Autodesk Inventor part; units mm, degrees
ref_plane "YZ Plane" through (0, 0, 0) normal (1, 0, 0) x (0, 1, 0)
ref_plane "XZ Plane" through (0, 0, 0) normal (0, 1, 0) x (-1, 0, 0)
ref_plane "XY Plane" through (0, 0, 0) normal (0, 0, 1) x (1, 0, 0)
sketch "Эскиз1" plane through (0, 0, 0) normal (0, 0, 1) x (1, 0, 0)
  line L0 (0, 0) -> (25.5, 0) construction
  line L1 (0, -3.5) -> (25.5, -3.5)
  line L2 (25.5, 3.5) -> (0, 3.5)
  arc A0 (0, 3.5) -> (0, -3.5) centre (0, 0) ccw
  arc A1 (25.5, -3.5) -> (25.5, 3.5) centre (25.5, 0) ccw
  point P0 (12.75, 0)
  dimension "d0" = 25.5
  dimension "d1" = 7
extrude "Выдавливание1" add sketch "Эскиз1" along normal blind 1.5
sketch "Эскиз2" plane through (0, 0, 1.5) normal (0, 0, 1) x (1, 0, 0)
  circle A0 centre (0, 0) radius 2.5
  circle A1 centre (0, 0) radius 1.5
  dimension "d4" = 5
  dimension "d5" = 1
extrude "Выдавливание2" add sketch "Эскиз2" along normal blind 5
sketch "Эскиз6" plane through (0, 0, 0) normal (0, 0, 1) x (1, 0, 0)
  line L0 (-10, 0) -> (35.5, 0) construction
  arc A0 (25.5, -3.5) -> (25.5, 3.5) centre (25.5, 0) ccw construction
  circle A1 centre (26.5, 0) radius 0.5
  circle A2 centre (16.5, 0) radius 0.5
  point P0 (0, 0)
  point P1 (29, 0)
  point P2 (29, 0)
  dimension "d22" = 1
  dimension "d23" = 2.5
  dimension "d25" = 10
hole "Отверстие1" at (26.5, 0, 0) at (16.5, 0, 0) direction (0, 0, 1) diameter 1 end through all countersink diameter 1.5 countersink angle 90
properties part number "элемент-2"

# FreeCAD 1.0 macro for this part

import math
import FreeCAD as App
import Part
import Sketcher

V = App.Vector
Q = App.Units.Quantity

doc = App.newDocument("Part")
params = doc.addObject("Spreadsheet::Sheet", "Params")
for row, (alias, value) in enumerate([
    ("sketch1_radius", "3.5 mm"),
    ("sketch1_width", "25.5 mm"),
    ("pad1_length", "1.5 mm"),
    ("sketch2_diameter", "5 mm"),
    ("sketch2_diameter2", "3 mm"),
    ("pad2_length", "5 mm"),
    ("sketch3_diameter", "1 mm"),
    ("hole_diameter", "1 mm"),
    ("hole_csink_diameter", "1.5 mm"),
], start=1):
    params.set(f"A{row}", alias)
    params.set(f"B{row}", "=" + value)
    params.setAlias(f"B{row}", alias)

body = doc.addObject("PartDesign::Body", "Body")

sketch1 = body.newObject("Sketcher::SketchObject", "Sketch")
sketch1.AttachmentSupport = (doc.getObject("XY_Plane"), [""])
sketch1.MapMode = "FlatFace"
sketch1.addGeometry(Part.ArcOfCircle(Part.Circle(V(0, 0, 0), V(0, 0, 1), 3.5), math.radians(90), math.radians(270)), False)
sketch1.addGeometry(Part.LineSegment(V(0, -3.5, 0), V(25.5, -3.5, 0)), False)
sketch1.addGeometry(Part.ArcOfCircle(Part.Circle(V(25.5, 0, 0), V(0, 0, 1), 3.5), math.radians(-90), math.radians(90)), False)
sketch1.addGeometry(Part.LineSegment(V(25.5, 3.5, 0), V(0, 3.5, 0)), False)
sketch1.addConstraint(Sketcher.Constraint("Tangent", 0, 2, 1, 1))
sketch1.addConstraint(Sketcher.Constraint("Tangent", 1, 2, 2, 1))
sketch1.addConstraint(Sketcher.Constraint("Tangent", 2, 2, 3, 1))
sketch1.addConstraint(Sketcher.Constraint("Tangent", 3, 2, 0, 1))
sketch1.addConstraint(Sketcher.Constraint("Horizontal", 1))
sketch1.addConstraint(Sketcher.Constraint("Horizontal", 3))
sketch1.addConstraint(Sketcher.Constraint("Coincident", 0, 3, -1, 1))
sketch1.addConstraint(Sketcher.Constraint("Radius", 0, Q("3.5 mm")))
sketch1.addConstraint(Sketcher.Constraint("DistanceX", 1, 1, 1, 2, Q("25.5 mm")))
sketch1.setExpression("Constraints[7]", "Params.sketch1_radius")
sketch1.setExpression("Constraints[8]", "Params.sketch1_width")
pad1 = body.newObject("PartDesign::Pad", "Pad")
pad1.Profile = sketch1
pad1.setExpression("Length", "Params.pad1_length")

sketch2 = body.newObject("Sketcher::SketchObject", "Sketch001")
sketch2.AttachmentSupport = (doc.getObject("XY_Plane"), [""])
sketch2.MapMode = "FlatFace"
sketch2.AttachmentOffset = App.Placement(V(0, 0, 1.5), App.Rotation())
sketch2.addGeometry(Part.Circle(V(0, 0, 0), V(0, 0, 1), 2.5), False)
sketch2.addGeometry(Part.Circle(V(0, 0, 0), V(0, 0, 1), 1.5), False)
sketch2.addConstraint(Sketcher.Constraint("Coincident", 0, 3, -1, 1))
sketch2.addConstraint(Sketcher.Constraint("Coincident", 1, 3, -1, 1))
sketch2.addConstraint(Sketcher.Constraint("Diameter", 0, Q("5 mm")))
sketch2.addConstraint(Sketcher.Constraint("Diameter", 1, Q("3 mm")))
sketch2.setExpression("Constraints[2]", "Params.sketch2_diameter")
sketch2.setExpression("Constraints[3]", "Params.sketch2_diameter2")
pad2 = body.newObject("PartDesign::Pad", "Pad001")
pad2.Profile = sketch2
pad2.setExpression("Length", "Params.pad2_length")

sketch3 = body.newObject("Sketcher::SketchObject", "Sketch002")
sketch3.AttachmentSupport = (doc.getObject("XY_Plane"), [""])
sketch3.MapMode = "FlatFace"
sketch3.addGeometry(Part.Circle(V(26.5, 0, 0), V(0, 0, 1), 0.5), False)
sketch3.addGeometry(Part.Circle(V(16.5, 0, 0), V(0, 0, 1), 0.5), False)
sketch3.addConstraint(Sketcher.Constraint("Equal", 0, 1))
sketch3.addConstraint(Sketcher.Constraint("PointOnObject", 0, 3, -1))
sketch3.addConstraint(Sketcher.Constraint("PointOnObject", 1, 3, -1))
sketch3.addConstraint(Sketcher.Constraint("Diameter", 0, Q("1 mm")))
sketch3.addConstraint(Sketcher.Constraint("DistanceX", 1, 3, 0, 3, Q("10 mm")))
sketch3.addConstraint(Sketcher.Constraint("DistanceX", -1, 1, 0, 3, Q("26.5 mm")))
sketch3.setExpression("Constraints[3]", "Params.sketch3_diameter")
doc.recompute()
hole = body.newObject("PartDesign::Hole", "Hole")
hole.Profile = sketch3
hole.ThreadType = "None"
hole.setExpression("Diameter", "Params.hole_diameter")
hole.DepthType = "ThroughAll"
hole.HoleCutType = "Countersink"
hole.setExpression("HoleCutDiameter", "Params.hole_csink_diameter")
hole.HoleCutCountersinkAngle = 90
hole.Reversed = True

doc.recompute()
